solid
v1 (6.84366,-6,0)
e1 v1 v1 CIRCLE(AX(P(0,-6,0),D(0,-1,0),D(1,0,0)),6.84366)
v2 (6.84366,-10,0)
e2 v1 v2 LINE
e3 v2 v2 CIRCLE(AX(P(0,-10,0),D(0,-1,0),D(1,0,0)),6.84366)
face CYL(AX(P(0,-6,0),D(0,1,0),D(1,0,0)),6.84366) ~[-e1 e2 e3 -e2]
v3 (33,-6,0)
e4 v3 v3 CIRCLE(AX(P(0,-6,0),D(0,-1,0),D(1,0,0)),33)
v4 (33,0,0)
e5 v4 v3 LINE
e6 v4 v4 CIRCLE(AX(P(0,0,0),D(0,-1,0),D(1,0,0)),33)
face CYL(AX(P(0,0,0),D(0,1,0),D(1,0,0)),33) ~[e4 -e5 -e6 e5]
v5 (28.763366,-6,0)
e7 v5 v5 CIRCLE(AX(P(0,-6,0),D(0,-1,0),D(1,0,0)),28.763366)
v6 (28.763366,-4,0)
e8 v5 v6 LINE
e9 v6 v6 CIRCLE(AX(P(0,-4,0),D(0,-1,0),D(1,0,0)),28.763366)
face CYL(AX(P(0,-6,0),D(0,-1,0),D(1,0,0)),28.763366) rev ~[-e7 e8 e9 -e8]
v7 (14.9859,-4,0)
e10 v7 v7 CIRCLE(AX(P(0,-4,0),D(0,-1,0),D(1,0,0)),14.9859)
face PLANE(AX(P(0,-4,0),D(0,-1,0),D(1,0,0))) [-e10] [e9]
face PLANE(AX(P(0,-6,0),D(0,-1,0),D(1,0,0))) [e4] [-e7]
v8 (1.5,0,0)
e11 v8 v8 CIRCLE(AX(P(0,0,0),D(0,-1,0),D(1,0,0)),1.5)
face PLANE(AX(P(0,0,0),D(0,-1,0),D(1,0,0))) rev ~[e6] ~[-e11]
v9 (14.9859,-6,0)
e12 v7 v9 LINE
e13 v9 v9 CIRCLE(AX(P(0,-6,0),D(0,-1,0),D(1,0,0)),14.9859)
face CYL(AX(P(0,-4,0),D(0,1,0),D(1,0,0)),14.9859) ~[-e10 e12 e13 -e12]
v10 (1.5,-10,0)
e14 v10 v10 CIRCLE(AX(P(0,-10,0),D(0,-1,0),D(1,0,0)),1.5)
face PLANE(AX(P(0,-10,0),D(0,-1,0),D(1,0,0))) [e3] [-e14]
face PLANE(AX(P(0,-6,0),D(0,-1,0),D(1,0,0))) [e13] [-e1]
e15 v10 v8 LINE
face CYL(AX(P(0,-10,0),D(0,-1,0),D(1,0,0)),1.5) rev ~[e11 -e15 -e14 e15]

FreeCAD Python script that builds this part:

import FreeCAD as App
import Part
import Sketcher

V = App.Vector

doc = App.newDocument("Part")
body = doc.addObject("PartDesign::Body", "Body")

sketch1 = body.newObject("Sketcher::SketchObject", "Sketch")
sketch1.AttachmentSupport = (doc.getObject("XZ_Plane"), [""])
sketch1.MapMode = "FlatFace"
sketch1.addGeometry(Part.Circle(V(0, 0, 0), V(0, 0, 1), 33), False)
sketch1.addConstraint(Sketcher.Constraint("Coincident", 0, 3, -1, 1))
sketch1.addConstraint(Sketcher.Constraint("Diameter", 0, 66.0))
pad1 = body.newObject("PartDesign::Pad", "Pad")
pad1.Profile = sketch1
pad1.Length = 6

sketch2 = body.newObject("Sketcher::SketchObject", "Sketch001")
sketch2.AttachmentSupport = (doc.getObject("XZ_Plane"), [""])
sketch2.MapMode = "FlatFace"
sketch2.AttachmentOffset = App.Placement(V(0, 0, 6), App.Rotation())
sketch2.addGeometry(Part.Circle(V(0, 0, 0), V(0, 0, 1), 29), False)
sketch2.addConstraint(Sketcher.Constraint("Coincident", 0, 3, -1, 1))
sketch2.addConstraint(Sketcher.Constraint("Diameter", 0, 57.526732))
pocket1 = body.newObject("PartDesign::Pocket", "Pocket")
pocket1.Profile = sketch2
pocket1.Length = 2

sketch3 = body.newObject("Sketcher::SketchObject", "Sketch002")
sketch3.AttachmentSupport = (doc.getObject("XZ_Plane"), [""])
sketch3.MapMode = "FlatFace"
sketch3.AttachmentOffset = App.Placement(V(0, 0, 4), App.Rotation())
sketch3.addGeometry(Part.Circle(V(0, 0, 0), V(0, 0, 1), 15), False)
sketch3.addConstraint(Sketcher.Constraint("Coincident", 0, 3, -1, 1))
sketch3.addConstraint(Sketcher.Constraint("Diameter", 0, 29.9718))
pad2 = body.newObject("PartDesign::Pad", "Pad001")
pad2.Profile = sketch3
pad2.Length = 2

sketch4 = body.newObject("Sketcher::SketchObject", "Sketch003")
sketch4.AttachmentSupport = (doc.getObject("XZ_Plane"), [""])
sketch4.MapMode = "FlatFace"
sketch4.AttachmentOffset = App.Placement(V(0, 0, 6), App.Rotation())
sketch4.addGeometry(Part.Circle(V(0, 0, 0), V(0, 0, 1), 7), False)
sketch4.addConstraint(Sketcher.Constraint("Coincident", 0, 3, -1, 1))
sketch4.addConstraint(Sketcher.Constraint("Diameter", 0, 13.68732))
pad3 = body.newObject("PartDesign::Pad", "Pad002")
pad3.Profile = sketch4
pad3.Length = 4

sketch5 = body.newObject("Sketcher::SketchObject", "Sketch004")
sketch5.AttachmentSupport = (doc.getObject("XZ_Plane"), [""])
sketch5.MapMode = "FlatFace"
sketch5.AttachmentOffset = App.Placement(V(0, 0, 10), App.Rotation())
sketch5.addGeometry(Part.Circle(V(0, 0, 0), V(0, 0, 1), 1.5), False)
sketch5.addConstraint(Sketcher.Constraint("Coincident", 0, 3, -1, 1))
sketch5.addConstraint(Sketcher.Constraint("Diameter", 0, 3.0))
pocket2 = body.newObject("PartDesign::Pocket", "Pocket001")
pocket2.Profile = sketch5
pocket2.Length = 25

doc.recompute()
